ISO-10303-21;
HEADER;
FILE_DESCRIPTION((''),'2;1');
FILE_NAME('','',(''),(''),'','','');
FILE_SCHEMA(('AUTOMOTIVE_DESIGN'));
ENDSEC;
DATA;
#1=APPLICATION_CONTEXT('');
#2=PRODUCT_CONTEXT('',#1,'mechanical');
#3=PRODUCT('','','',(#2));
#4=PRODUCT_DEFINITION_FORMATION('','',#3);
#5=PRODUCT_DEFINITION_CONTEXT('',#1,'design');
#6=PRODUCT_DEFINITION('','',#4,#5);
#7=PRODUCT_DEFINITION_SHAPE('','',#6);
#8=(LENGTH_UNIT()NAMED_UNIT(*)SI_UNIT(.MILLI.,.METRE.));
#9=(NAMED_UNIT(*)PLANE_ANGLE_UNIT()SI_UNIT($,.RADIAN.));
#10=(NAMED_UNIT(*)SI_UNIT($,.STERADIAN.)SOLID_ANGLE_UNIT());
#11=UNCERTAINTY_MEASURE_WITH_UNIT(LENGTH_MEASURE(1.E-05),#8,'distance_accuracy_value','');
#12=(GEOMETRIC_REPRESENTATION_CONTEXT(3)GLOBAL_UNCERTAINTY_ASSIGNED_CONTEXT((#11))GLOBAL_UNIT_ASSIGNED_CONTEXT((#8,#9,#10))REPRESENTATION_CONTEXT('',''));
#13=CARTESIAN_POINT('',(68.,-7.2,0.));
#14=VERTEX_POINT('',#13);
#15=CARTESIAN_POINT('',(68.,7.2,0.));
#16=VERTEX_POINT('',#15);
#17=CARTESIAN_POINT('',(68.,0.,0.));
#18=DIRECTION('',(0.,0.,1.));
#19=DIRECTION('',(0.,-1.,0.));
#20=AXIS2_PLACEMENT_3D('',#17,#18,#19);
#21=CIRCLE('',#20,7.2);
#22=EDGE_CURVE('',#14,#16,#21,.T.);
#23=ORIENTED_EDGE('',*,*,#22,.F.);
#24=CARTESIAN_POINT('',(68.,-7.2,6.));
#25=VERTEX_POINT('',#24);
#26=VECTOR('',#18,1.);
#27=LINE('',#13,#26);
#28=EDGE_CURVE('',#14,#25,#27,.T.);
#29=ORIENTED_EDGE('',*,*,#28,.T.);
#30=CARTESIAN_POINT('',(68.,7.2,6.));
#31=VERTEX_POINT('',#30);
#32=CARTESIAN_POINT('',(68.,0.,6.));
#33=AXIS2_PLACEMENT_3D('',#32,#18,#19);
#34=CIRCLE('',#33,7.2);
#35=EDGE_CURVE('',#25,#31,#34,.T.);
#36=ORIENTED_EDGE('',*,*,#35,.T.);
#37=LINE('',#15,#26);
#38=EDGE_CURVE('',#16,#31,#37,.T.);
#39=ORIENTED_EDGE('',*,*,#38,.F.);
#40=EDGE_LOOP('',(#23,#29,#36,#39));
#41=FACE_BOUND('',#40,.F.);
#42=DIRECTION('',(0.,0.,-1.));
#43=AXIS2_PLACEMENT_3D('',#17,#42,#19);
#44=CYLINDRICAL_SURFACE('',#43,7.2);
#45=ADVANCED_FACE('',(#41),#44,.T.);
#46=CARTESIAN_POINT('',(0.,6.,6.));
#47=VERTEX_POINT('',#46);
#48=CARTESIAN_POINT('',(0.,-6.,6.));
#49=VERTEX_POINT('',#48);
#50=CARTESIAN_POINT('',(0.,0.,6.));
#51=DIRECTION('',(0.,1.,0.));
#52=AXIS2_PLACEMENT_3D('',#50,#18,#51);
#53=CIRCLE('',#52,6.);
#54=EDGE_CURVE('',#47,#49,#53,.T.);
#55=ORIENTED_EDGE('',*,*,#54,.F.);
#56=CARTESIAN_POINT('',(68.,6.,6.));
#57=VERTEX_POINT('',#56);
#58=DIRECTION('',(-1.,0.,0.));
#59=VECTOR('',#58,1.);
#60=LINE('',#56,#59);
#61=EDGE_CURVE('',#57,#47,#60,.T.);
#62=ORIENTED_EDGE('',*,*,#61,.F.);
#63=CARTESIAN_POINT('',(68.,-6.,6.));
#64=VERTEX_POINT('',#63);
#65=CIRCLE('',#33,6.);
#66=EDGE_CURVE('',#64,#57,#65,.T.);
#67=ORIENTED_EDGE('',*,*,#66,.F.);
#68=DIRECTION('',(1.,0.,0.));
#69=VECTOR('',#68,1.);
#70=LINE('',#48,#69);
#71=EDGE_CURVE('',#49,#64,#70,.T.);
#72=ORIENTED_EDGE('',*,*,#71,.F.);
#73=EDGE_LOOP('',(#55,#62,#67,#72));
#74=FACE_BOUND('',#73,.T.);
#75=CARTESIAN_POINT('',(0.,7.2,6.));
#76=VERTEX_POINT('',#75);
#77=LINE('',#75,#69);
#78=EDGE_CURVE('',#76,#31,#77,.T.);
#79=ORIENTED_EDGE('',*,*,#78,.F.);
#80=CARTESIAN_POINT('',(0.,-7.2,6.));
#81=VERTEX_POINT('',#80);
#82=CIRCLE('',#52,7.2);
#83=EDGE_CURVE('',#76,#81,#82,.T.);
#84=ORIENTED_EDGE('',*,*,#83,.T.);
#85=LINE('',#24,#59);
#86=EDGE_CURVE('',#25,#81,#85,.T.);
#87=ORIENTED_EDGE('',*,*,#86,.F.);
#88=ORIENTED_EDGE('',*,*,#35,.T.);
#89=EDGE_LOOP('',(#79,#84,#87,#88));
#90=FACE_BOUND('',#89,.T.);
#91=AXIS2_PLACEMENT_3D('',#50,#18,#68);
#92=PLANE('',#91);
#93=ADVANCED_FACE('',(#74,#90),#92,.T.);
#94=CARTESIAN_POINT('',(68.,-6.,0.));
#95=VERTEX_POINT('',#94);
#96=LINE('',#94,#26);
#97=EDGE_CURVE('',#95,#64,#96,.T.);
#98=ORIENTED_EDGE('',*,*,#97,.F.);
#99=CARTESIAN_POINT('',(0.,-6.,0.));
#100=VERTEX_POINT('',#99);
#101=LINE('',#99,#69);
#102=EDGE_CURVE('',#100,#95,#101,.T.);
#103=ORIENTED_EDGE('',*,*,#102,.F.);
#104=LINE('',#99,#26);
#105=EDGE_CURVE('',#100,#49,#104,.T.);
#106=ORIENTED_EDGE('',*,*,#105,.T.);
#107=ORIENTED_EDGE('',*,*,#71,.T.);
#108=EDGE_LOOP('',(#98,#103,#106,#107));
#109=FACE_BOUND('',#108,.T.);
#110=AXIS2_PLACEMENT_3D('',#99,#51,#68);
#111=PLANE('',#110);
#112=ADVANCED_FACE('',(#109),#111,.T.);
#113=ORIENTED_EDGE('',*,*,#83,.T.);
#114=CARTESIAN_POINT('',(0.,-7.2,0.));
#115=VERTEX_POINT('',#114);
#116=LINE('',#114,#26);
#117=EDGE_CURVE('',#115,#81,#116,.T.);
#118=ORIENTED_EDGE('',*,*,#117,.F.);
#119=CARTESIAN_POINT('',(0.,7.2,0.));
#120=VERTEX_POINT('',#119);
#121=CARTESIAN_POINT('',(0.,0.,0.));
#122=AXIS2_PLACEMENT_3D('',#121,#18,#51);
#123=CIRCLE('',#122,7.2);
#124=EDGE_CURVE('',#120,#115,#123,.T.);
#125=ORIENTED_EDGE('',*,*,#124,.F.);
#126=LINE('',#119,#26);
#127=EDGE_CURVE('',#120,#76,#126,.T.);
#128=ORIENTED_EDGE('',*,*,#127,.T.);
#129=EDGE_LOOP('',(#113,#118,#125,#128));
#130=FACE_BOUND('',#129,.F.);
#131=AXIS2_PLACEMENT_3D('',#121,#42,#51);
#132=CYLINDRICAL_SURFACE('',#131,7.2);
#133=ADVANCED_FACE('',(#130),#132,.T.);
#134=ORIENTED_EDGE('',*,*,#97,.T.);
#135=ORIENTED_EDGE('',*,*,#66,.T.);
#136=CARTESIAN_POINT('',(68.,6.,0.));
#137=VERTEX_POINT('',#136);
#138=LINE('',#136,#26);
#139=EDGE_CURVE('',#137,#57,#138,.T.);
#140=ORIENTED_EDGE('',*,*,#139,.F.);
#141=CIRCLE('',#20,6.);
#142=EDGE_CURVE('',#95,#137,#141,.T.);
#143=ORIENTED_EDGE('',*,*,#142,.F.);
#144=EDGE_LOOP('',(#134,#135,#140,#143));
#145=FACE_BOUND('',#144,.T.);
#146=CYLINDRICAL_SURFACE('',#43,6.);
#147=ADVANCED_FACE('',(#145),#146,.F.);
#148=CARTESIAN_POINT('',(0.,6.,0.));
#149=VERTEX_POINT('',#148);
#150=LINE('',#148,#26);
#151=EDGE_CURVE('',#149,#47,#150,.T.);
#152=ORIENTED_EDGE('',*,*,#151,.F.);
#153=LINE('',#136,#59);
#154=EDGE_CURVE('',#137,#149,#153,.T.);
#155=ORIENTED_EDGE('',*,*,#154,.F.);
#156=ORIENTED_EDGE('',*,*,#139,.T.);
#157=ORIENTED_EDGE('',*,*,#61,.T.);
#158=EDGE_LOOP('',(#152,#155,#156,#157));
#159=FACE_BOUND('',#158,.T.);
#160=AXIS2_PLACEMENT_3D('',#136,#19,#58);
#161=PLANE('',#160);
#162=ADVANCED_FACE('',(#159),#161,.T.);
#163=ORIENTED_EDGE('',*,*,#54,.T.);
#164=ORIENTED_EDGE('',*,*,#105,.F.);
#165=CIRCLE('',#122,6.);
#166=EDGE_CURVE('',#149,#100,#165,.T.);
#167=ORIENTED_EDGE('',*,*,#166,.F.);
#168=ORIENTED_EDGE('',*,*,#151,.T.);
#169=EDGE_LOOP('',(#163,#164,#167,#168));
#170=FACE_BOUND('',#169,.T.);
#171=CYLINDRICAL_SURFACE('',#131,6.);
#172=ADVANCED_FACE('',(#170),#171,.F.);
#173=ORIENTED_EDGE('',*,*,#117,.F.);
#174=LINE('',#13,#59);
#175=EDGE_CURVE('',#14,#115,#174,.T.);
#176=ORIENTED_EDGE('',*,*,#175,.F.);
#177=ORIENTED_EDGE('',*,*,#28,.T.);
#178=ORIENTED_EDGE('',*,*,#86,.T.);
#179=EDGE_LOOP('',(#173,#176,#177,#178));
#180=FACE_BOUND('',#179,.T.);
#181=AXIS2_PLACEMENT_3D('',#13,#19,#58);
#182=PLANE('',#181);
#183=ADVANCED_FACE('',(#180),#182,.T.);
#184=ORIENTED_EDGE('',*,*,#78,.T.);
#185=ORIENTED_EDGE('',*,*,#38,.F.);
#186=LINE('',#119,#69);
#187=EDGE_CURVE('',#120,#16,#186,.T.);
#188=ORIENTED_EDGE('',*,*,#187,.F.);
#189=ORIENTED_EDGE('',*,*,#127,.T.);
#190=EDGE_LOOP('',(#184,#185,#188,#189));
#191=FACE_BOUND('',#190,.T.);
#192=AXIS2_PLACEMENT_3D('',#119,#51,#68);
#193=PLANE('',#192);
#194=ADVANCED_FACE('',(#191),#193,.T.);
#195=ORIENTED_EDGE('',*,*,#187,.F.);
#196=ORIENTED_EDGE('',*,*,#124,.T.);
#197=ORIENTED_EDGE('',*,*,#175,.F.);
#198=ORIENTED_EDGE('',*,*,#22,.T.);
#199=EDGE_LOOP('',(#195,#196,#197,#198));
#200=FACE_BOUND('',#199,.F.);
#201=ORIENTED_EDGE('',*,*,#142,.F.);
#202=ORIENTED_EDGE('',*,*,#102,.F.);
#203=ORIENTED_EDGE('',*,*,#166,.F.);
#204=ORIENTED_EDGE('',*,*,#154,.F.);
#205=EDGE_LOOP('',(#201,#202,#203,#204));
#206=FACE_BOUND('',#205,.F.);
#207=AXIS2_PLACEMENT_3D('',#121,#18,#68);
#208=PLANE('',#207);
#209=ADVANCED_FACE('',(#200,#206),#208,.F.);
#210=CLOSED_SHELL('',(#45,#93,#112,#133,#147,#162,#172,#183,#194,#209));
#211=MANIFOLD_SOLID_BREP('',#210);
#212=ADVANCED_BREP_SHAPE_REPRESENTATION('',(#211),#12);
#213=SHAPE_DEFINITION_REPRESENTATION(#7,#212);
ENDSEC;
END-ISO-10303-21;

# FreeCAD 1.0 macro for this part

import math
import FreeCAD as App
import Part
import Sketcher
from FreeCAD import Vector

doc = App.newDocument("Part")
body = doc.addObject("PartDesign::Body", "Body")

sketch1 = doc.addObject("Sketcher::SketchObject", "Sketch")
body.addObject(sketch1)
sketch1.AttachmentSupport = (doc.XY_Plane, [""])
sketch1.MapMode = "FlatFace"
sketch1.addGeometry(Part.LineSegment(Vector(68, 7.2, 0), Vector(0, 7.2, 0)), False)
sketch1.addGeometry(Part.ArcOfCircle(Part.Circle(Vector(0, 0, 0), Vector(0, 0, 1), 7.2), math.radians(90), math.radians(270)), False)
sketch1.addGeometry(Part.LineSegment(Vector(0, -7.2, 0), Vector(68, -7.2, 0)), False)
sketch1.addGeometry(Part.ArcOfCircle(Part.Circle(Vector(68, 0, 0), Vector(0, 0, 1), 7.2), math.radians(-90), math.radians(90)), False)
sketch1.addGeometry(Part.ArcOfCircle(Part.Circle(Vector(0, 0, 0), Vector(0, 0, 1), 6), math.radians(90), math.radians(270)), False)
sketch1.addGeometry(Part.LineSegment(Vector(0, 6, 0), Vector(68, 6, 0)), False)
sketch1.addGeometry(Part.ArcOfCircle(Part.Circle(Vector(68, 0, 0), Vector(0, 0, 1), 6), math.radians(-90), math.radians(90)), False)
sketch1.addGeometry(Part.LineSegment(Vector(68, -6, 0), Vector(0, -6, 0)), False)
sketch1.addConstraint(Sketcher.Constraint("Tangent", 0, 2, 1, 1))
sketch1.addConstraint(Sketcher.Constraint("Tangent", 1, 2, 2, 1))
sketch1.addConstraint(Sketcher.Constraint("Tangent", 2, 2, 3, 1))
sketch1.addConstraint(Sketcher.Constraint("Tangent", 3, 2, 0, 1))
sketch1.addConstraint(Sketcher.Constraint("Tangent", 4, 1, 5, 1))
sketch1.addConstraint(Sketcher.Constraint("Tangent", 5, 2, 6, 2))
sketch1.addConstraint(Sketcher.Constraint("Tangent", 6, 1, 7, 1))
sketch1.addConstraint(Sketcher.Constraint("Tangent", 7, 2, 4, 2))
sketch1.addConstraint(Sketcher.Constraint("Horizontal", 0))
sketch1.addConstraint(Sketcher.Constraint("Horizontal", 2))
sketch1.addConstraint(Sketcher.Constraint("Horizontal", 5))
sketch1.addConstraint(Sketcher.Constraint("Horizontal", 7))
sketch1.addConstraint(Sketcher.Constraint("Coincident", 1, 3, -1, 1))
sketch1.addConstraint(Sketcher.Constraint("Coincident", 4, 3, -1, 1))
sketch1.addConstraint(Sketcher.Constraint("Vertical", 6, 3, 2, 2))
sketch1.addConstraint(Sketcher.Constraint("Radius", 4, 6.0))
sketch1.addConstraint(Sketcher.Constraint("DistanceX", 0, 2, 0, 1, 68.0))
sketch1.addConstraint(Sketcher.Constraint("Radius", 1, 7.2))
pad1 = doc.addObject("PartDesign::Pad", "Pad")
body.addObject(pad1)
pad1.Profile = sketch1
pad1.Length = 6

doc.recompute()
